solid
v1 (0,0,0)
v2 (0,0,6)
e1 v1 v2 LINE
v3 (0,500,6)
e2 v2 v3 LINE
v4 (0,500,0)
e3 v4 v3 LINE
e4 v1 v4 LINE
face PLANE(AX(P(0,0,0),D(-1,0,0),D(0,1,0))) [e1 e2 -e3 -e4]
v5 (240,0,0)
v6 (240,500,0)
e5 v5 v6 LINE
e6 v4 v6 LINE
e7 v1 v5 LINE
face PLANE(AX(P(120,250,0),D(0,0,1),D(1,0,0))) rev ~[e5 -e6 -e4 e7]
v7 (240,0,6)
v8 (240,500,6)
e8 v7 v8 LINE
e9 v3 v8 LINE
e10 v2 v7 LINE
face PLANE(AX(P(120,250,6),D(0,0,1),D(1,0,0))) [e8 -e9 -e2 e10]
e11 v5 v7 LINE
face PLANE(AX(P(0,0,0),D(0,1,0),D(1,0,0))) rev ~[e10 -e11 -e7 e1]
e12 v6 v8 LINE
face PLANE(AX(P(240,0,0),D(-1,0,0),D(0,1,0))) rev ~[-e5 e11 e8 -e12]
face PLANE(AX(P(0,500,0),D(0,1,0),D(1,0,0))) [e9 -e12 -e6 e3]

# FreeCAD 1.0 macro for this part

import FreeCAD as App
import Part
import Sketcher

V = App.Vector
Q = App.Units.Quantity

doc = App.newDocument("Part")
body = doc.addObject("PartDesign::Body", "Body")

sketch1 = body.newObject("Sketcher::SketchObject", "Sketch")
sketch1.AttachmentSupport = (doc.getObject("XY_Plane"), [""])
sketch1.MapMode = "FlatFace"
sketch1.addGeometry([
    Part.LineSegment(V(0, 500, 0), V(0, 0, 0)),
    Part.LineSegment(V(0, 0, 0), V(240, 0, 0)),
    Part.LineSegment(V(240, 0, 0), V(240, 500, 0)),
    Part.LineSegment(V(240, 500, 0), V(0, 500, 0)),
], False)
sketch1.addConstraint([
    Sketcher.Constraint("Coincident", 0, 2, 1, 1),
    Sketcher.Constraint("Coincident", 1, 2, 2, 1),
    Sketcher.Constraint("Coincident", 2, 2, 3, 1),
    Sketcher.Constraint("Coincident", 3, 2, 0, 1),
    Sketcher.Constraint("Vertical", 0),
    Sketcher.Constraint("Horizontal", 1),
    Sketcher.Constraint("Vertical", 2),
    Sketcher.Constraint("Horizontal", 3),
    Sketcher.Constraint("Coincident", 0, 2, -1, 1),
    Sketcher.Constraint("DistanceX", 1, 1, 1, 2, Q("240 mm")),
    Sketcher.Constraint("DistanceY", 0, 2, 0, 1, Q("500 mm")),
])
pad1 = body.newObject("PartDesign::Pad", "Pad")
pad1.Profile = sketch1
pad1.Length = 6

doc.recompute()
